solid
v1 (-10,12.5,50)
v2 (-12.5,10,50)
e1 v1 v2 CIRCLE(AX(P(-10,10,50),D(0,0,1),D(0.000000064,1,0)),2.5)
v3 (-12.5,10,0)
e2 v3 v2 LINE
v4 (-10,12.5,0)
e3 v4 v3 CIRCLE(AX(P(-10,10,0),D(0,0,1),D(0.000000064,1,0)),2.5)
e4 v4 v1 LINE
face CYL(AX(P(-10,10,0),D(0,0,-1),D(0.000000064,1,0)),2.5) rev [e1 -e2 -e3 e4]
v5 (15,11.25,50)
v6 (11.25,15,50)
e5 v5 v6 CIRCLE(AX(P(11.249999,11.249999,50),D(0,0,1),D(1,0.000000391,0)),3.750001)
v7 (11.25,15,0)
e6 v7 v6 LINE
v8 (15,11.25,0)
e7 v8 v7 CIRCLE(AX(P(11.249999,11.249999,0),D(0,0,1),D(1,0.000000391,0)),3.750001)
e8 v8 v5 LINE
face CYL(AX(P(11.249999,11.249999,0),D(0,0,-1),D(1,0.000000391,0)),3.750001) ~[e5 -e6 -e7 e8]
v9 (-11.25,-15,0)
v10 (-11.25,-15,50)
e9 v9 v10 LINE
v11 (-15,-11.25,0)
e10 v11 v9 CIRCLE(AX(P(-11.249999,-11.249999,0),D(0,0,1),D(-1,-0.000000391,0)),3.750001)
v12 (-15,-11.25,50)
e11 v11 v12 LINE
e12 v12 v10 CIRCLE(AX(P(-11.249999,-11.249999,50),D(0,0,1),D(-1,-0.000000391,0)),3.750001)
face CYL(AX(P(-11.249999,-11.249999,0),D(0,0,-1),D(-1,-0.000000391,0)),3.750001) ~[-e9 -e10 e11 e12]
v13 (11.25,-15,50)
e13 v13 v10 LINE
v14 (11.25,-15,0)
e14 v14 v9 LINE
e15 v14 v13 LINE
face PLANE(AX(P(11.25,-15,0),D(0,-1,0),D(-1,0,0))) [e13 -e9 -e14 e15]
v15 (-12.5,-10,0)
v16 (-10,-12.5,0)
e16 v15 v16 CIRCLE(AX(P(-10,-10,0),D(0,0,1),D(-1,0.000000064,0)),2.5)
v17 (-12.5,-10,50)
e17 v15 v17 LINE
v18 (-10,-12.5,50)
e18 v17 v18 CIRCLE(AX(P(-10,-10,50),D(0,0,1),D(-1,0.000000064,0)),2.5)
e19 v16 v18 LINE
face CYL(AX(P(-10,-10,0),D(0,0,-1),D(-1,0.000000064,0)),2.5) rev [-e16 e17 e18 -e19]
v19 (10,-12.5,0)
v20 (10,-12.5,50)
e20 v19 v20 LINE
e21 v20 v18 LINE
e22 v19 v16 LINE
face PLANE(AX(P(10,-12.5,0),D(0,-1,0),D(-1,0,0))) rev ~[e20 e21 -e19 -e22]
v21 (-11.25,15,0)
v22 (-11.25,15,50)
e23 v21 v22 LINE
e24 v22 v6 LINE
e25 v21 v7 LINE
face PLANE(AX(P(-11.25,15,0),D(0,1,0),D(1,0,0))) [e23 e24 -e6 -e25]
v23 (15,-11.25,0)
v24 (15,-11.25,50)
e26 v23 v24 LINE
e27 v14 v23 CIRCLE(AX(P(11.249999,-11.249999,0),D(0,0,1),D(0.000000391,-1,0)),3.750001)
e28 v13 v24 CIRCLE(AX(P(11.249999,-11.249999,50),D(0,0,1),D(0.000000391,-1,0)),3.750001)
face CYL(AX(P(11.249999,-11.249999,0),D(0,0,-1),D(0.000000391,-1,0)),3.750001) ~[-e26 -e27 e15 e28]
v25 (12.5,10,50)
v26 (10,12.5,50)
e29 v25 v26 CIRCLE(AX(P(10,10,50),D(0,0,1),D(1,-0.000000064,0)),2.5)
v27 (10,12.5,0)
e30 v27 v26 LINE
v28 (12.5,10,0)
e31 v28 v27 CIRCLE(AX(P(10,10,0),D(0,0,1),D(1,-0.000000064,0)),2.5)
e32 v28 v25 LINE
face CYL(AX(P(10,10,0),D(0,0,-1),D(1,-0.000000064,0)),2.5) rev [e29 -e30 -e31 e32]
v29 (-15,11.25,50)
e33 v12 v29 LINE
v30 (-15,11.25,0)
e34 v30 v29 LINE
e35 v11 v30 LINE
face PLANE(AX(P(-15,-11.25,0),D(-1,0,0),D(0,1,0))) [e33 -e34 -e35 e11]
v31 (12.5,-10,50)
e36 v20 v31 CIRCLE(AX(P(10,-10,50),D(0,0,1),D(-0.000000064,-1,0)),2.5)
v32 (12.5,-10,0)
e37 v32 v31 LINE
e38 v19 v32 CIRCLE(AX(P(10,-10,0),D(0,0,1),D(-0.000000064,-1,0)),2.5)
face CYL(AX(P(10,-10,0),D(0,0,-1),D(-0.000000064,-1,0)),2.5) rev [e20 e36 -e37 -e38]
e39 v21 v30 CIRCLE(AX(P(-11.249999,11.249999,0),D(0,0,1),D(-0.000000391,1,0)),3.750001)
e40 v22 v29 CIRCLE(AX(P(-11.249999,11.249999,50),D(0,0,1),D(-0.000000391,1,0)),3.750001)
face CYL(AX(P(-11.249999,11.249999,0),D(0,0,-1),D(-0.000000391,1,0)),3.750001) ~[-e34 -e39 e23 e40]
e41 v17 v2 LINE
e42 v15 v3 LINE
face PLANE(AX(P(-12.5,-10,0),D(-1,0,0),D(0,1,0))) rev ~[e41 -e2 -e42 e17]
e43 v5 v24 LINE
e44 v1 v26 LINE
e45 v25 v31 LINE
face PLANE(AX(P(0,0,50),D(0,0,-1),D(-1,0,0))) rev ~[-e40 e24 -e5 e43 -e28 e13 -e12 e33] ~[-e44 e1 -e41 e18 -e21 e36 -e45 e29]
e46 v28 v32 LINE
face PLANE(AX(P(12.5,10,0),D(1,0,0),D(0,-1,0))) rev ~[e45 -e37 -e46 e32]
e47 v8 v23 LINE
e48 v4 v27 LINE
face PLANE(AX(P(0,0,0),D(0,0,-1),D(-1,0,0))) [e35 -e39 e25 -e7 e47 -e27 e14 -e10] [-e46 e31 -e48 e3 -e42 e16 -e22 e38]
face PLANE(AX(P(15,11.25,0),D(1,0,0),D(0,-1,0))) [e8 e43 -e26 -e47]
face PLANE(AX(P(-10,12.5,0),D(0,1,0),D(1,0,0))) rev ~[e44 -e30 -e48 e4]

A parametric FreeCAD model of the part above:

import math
import FreeCAD as App
import Part
import Sketcher

V = App.Vector

doc = App.newDocument("Part")
body = doc.addObject("PartDesign::Body", "Body")

# Sketch on XY plane
sketch1 = body.newObject("Sketcher::SketchObject", "Sketch")
sketch1.AttachmentSupport = (doc.getObject("XY_Plane"), [""])
sketch1.MapMode = "FlatFace"
sketch1.addGeometry([
    Part.LineSegment(V(11.2, 15, 0), V(-11.2, 15, 0)),  # 0
    Part.ArcOfCircle(Part.Circle(V(-11.2, 11.2, 0), V(0, 0, 1), 3.8), math.radians(90), math.radians(180)),  # 1
    Part.LineSegment(V(-15, 11.2, 0), V(-15, -11.2, 0)),  # 2
    Part.ArcOfCircle(Part.Circle(V(-11.2, -11.2, 0), V(0, 0, 1), 3.8), math.radians(-180), math.radians(-90)),  # 3
    Part.LineSegment(V(-11.2, -15, 0), V(11.2, -15, 0)),  # 4
    Part.ArcOfCircle(Part.Circle(V(11.2, -11.2, 0), V(0, 0, 1), 3.8), math.radians(-90), math.radians(0)),  # 5
    Part.LineSegment(V(15, -11.2, 0), V(15, 11.2, 0)),  # 6
    Part.ArcOfCircle(Part.Circle(V(11.2, 11.2, 0), V(0, 0, 1), 3.8), math.radians(0), math.radians(90)),  # 7
    Part.LineSegment(V(-10, 12.5, 0), V(10, 12.5, 0)),  # 8
    Part.ArcOfCircle(Part.Circle(V(10, 10, 0), V(0, 0, 1), 2.5), math.radians(0), math.radians(90)),  # 9
    Part.LineSegment(V(12.5, 10, 0), V(12.5, -10, 0)),  # 10
    Part.ArcOfCircle(Part.Circle(V(10, -10, 0), V(0, 0, 1), 2.5), math.radians(-90), math.radians(0)),  # 11
    Part.LineSegment(V(10, -12.5, 0), V(-10, -12.5, 0)),  # 12
    Part.ArcOfCircle(Part.Circle(V(-10, -10, 0), V(0, 0, 1), 2.5), math.radians(180), math.radians(270)),  # 13
    Part.LineSegment(V(-12.5, -10, 0), V(-12.5, 10, 0)),  # 14
    Part.ArcOfCircle(Part.Circle(V(-10, 10, 0), V(0, 0, 1), 2.5), math.radians(90), math.radians(180)),  # 15
], False)
sketch1.addConstraint([
    Sketcher.Constraint("Tangent", 0, 2, 1, 1),
    Sketcher.Constraint("Tangent", 1, 2, 2, 1),
    Sketcher.Constraint("Tangent", 2, 2, 3, 1),
    Sketcher.Constraint("Tangent", 3, 2, 4, 1),
    Sketcher.Constraint("Tangent", 4, 2, 5, 1),
    Sketcher.Constraint("Tangent", 5, 2, 6, 1),
    Sketcher.Constraint("Tangent", 6, 2, 7, 1),
    Sketcher.Constraint("Tangent", 7, 2, 0, 1),
    Sketcher.Constraint("Tangent", 8, 2, 9, 2),
    Sketcher.Constraint("Tangent", 9, 1, 10, 1),
    Sketcher.Constraint("Tangent", 10, 2, 11, 2),
    Sketcher.Constraint("Tangent", 11, 1, 12, 1),
    Sketcher.Constraint("Tangent", 12, 2, 13, 2),
    Sketcher.Constraint("Tangent", 13, 1, 14, 1),
    Sketcher.Constraint("Tangent", 14, 2, 15, 2),
    Sketcher.Constraint("Tangent", 15, 1, 8, 1),
    Sketcher.Constraint("Horizontal", 0),
    Sketcher.Constraint("Vertical", 2),
    Sketcher.Constraint("Horizontal", 4),
    Sketcher.Constraint("Vertical", 6),
    Sketcher.Constraint("Horizontal", 8),
    Sketcher.Constraint("Vertical", 10),
    Sketcher.Constraint("Horizontal", 12),
    Sketcher.Constraint("Vertical", 14),
    Sketcher.Constraint("Equal", 1, 3),
    Sketcher.Constraint("Equal", 3, 5),
    Sketcher.Constraint("Equal", 5, 7),
    Sketcher.Constraint("Equal", 9, 11),
    Sketcher.Constraint("Equal", 11, 13),
    Sketcher.Constraint("Equal", 13, 15),
    Sketcher.Constraint("Symmetric", 1, 3, 5, 3, -1, 1),
    Sketcher.Constraint("Symmetric", 9, 3, 13, 3, -1, 1),
    Sketcher.Constraint("Equal", 4, 2),
    Sketcher.Constraint("Equal", 12, 10),
    Sketcher.Constraint("Radius", 9, 2.5),
    Sketcher.Constraint("DistanceX", 8, 1, 8, 2, 20.0),
    Sketcher.Constraint("Radius", 1, 3.750001),
    Sketcher.Constraint("DistanceX", 0, 2, 0, 1, 22.5),
])
pad1 = body.newObject("PartDesign::Pad", "Pad")
pad1.Profile = sketch1
pad1.Length = 50

doc.recompute()
